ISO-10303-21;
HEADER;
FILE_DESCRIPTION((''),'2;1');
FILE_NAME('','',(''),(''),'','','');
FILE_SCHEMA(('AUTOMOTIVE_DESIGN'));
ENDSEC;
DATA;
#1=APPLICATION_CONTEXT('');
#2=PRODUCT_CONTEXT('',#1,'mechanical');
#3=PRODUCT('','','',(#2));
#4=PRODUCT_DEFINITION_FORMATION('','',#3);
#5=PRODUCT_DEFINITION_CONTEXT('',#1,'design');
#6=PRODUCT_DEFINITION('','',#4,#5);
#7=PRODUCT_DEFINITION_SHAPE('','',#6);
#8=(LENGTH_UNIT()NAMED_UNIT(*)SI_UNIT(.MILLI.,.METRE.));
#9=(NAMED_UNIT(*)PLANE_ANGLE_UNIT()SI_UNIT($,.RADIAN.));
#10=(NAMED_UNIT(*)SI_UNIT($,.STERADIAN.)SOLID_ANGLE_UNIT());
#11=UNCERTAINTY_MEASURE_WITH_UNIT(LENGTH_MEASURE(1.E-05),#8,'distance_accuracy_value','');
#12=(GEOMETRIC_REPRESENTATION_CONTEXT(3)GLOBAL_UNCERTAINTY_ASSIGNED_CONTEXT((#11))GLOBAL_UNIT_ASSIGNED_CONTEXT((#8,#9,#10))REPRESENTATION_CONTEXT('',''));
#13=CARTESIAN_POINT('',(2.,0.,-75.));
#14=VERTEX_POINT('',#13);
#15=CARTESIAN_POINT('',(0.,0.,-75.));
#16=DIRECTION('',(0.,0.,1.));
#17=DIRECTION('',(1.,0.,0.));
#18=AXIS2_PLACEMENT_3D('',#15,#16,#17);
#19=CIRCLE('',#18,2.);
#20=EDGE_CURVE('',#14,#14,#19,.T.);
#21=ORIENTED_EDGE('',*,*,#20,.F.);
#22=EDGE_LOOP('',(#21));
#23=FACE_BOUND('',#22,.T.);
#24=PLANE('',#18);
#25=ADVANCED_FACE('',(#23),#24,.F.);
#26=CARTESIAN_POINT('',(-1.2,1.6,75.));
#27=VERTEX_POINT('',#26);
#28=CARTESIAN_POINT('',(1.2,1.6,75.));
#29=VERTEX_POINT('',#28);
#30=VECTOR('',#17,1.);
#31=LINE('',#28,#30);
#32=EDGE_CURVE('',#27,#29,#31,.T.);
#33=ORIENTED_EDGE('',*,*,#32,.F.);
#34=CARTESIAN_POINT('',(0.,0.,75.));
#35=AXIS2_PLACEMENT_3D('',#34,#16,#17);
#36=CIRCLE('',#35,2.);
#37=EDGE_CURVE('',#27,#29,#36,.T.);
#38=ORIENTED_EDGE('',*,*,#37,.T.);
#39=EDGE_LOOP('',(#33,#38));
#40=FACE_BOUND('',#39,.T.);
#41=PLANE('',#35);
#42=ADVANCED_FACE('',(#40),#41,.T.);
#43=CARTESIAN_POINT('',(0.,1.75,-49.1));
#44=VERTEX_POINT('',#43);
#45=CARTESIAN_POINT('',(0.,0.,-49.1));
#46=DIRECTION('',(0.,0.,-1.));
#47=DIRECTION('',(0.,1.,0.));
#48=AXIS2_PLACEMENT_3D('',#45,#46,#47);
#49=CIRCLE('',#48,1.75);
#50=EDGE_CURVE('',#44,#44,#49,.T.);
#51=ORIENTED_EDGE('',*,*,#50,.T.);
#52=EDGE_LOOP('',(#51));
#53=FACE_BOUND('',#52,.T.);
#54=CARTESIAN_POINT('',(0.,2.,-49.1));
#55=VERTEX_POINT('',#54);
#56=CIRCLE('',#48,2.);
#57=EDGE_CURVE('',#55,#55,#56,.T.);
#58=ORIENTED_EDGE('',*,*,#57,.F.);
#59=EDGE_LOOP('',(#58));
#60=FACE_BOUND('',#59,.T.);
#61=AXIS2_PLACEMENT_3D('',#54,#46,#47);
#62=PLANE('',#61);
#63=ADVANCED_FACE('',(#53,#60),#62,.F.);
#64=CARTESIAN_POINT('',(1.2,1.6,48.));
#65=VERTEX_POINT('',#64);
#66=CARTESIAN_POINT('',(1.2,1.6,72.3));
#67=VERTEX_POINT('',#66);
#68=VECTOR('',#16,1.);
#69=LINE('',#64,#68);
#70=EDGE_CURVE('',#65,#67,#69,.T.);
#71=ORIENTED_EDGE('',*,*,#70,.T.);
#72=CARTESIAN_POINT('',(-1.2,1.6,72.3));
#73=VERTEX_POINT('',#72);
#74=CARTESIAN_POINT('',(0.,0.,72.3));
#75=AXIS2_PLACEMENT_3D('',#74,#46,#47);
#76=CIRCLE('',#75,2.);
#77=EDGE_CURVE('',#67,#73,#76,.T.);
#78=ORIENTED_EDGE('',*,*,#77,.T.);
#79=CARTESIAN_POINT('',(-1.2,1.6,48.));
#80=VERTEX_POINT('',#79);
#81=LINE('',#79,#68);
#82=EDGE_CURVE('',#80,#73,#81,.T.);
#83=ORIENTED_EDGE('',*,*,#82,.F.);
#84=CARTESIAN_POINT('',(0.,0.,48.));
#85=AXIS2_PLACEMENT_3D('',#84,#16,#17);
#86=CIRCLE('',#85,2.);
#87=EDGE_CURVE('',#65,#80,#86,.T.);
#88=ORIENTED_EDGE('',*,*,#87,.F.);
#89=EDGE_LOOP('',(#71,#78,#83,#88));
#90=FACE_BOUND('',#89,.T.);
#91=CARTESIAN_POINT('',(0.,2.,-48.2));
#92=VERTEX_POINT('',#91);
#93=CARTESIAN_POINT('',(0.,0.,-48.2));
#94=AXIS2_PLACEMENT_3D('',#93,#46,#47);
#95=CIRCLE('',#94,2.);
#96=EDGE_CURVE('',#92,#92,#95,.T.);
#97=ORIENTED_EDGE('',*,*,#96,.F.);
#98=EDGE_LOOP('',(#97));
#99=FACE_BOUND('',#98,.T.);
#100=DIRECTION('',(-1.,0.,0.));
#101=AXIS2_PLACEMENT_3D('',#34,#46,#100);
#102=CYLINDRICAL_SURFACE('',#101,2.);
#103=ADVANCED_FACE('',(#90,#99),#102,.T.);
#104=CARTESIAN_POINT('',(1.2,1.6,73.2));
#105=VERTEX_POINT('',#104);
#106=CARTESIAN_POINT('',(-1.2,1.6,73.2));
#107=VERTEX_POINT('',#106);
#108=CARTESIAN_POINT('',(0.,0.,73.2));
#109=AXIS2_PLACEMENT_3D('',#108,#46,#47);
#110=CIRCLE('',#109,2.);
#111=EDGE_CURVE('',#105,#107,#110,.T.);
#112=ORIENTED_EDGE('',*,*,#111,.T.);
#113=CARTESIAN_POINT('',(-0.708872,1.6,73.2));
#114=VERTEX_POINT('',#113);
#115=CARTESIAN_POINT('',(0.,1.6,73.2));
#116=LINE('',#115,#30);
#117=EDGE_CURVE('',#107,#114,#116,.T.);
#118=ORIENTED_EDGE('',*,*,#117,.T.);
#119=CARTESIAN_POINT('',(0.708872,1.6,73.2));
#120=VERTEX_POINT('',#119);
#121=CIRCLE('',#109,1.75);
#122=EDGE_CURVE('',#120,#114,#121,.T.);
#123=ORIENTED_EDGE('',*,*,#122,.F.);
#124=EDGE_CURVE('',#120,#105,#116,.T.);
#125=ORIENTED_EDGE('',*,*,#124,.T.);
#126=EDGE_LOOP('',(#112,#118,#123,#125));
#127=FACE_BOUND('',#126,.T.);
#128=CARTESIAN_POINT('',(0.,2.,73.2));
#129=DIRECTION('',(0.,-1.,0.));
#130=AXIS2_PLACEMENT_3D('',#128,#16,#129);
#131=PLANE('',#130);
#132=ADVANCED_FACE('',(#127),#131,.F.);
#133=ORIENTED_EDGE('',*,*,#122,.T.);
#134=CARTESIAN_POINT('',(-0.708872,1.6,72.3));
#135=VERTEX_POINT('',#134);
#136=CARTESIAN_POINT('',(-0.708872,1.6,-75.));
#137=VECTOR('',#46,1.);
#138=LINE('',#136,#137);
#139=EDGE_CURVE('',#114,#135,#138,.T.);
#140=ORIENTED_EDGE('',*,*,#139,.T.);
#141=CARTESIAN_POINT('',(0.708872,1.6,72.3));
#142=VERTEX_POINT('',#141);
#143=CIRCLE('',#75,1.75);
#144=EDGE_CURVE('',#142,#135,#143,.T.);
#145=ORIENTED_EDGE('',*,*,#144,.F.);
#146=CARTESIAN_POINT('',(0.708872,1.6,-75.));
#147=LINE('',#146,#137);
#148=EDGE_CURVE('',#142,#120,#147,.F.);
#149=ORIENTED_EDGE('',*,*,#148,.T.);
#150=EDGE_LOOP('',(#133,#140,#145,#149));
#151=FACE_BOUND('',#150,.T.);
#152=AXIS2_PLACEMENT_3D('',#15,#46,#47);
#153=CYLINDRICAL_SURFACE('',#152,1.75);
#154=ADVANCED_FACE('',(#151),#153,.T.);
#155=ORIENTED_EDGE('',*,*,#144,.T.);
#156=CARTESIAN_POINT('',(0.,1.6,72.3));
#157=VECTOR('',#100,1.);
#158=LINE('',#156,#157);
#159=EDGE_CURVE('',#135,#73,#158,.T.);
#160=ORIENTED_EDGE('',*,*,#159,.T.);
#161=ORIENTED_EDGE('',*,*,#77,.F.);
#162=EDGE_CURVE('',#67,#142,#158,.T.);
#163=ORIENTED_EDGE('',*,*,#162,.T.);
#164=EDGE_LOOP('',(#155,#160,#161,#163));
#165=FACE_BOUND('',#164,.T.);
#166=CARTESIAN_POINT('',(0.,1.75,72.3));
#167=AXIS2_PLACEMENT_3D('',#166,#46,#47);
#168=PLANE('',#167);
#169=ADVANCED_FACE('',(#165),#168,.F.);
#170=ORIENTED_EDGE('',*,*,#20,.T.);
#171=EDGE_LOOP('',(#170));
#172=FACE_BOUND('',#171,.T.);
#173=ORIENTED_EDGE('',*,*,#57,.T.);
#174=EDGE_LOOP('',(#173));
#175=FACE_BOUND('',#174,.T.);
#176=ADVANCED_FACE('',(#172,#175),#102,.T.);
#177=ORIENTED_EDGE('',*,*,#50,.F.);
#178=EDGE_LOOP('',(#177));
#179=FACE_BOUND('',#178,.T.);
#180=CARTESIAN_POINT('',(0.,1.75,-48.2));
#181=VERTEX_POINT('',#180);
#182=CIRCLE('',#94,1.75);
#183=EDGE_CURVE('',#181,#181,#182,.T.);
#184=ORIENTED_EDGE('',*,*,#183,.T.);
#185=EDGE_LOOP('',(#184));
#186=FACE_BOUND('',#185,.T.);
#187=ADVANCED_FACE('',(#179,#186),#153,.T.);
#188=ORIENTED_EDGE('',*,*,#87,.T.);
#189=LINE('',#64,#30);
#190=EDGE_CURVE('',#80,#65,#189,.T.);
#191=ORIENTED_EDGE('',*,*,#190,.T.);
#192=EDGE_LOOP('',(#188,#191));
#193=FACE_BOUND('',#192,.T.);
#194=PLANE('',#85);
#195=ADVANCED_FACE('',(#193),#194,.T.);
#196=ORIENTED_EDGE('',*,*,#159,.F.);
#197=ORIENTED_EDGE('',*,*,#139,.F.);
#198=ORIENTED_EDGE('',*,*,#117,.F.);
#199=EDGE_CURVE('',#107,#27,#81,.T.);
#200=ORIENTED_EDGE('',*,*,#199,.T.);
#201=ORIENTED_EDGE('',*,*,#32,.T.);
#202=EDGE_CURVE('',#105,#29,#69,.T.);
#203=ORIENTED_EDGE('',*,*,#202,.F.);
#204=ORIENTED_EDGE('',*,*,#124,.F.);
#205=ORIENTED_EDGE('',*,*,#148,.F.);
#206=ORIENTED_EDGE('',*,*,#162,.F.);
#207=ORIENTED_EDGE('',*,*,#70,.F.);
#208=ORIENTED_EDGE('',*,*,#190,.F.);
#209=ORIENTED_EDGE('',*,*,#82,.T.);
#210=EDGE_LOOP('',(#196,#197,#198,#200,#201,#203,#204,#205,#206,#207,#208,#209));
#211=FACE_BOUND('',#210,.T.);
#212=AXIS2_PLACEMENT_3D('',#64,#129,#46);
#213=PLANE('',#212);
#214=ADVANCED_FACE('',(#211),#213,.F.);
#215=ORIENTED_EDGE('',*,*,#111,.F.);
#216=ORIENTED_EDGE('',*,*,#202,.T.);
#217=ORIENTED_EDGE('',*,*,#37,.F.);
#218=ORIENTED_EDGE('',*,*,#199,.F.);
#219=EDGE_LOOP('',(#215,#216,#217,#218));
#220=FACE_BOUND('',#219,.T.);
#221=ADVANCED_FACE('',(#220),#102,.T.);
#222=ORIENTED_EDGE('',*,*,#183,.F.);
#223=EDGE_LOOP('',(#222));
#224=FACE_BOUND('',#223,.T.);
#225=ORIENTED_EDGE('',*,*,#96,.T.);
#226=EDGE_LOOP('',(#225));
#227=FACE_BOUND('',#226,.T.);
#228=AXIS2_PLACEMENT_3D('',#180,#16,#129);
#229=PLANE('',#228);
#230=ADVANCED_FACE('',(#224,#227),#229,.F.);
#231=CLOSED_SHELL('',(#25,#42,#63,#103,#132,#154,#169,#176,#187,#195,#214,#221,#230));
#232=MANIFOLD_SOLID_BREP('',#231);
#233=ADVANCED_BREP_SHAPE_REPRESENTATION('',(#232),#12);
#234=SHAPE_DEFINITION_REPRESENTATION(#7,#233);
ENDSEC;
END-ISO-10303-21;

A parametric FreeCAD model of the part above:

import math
import FreeCAD as App
import Part
import Sketcher

V = App.Vector
Q = App.Units.Quantity

doc = App.newDocument("Part")
body = doc.addObject("PartDesign::Body", "Body")

sketch1 = body.newObject("Sketcher::SketchObject", "Sketch")
sketch1.AttachmentSupport = (doc.getObject("XY_Plane"), [""])
sketch1.MapMode = "FlatFace"
sketch1.addGeometry(Part.Circle(V(0, 0, 0), V(0, 0, 1), 2), False)
sketch1.addConstraint([
    Sketcher.Constraint("Coincident", 0, 3, -1, 1),
    Sketcher.Constraint("Diameter", 0, Q("4 mm")),
])
pad1 = body.newObject("PartDesign::Pad", "Pad")
pad1.Profile = sketch1
pad1.Length = 150
pad1.Midplane = True

sketch2 = body.newObject("Sketcher::SketchObject", "Sketch001")
sketch2.AttachmentSupport = (doc.getObject("YZ_Plane"), [""])
sketch2.MapMode = "FlatFace"
sketch2.addGeometry([
    Part.LineSegment(V(2, 73.2, 0), V(1.75, 73.2, 0)),
    Part.LineSegment(V(1.75, 73.2, 0), V(1.75, 72.3, 0)),
    Part.LineSegment(V(1.75, 72.3, 0), V(2, 72.3, 0)),
    Part.LineSegment(V(2, 72.3, 0), V(2, 73.2, 0)),
    Part.LineSegment(V(2, -48.2, 0), V(1.75, -48.2, 0)),
    Part.LineSegment(V(1.75, -48.2, 0), V(1.75, -49.1, 0)),
    Part.LineSegment(V(1.75, -49.1, 0), V(2, -49.1, 0)),
    Part.LineSegment(V(2, -49.1, 0), V(2, -48.2, 0)),
], False)
sketch2.addConstraint([
    Sketcher.Constraint("Coincident", 0, 2, 1, 1),
    Sketcher.Constraint("Coincident", 1, 2, 2, 1),
    Sketcher.Constraint("Coincident", 2, 2, 3, 1),
    Sketcher.Constraint("Coincident", 3, 2, 0, 1),
    Sketcher.Constraint("Coincident", 4, 2, 5, 1),
    Sketcher.Constraint("Coincident", 5, 2, 6, 1),
    Sketcher.Constraint("Coincident", 6, 2, 7, 1),
    Sketcher.Constraint("Coincident", 7, 2, 4, 1),
    Sketcher.Constraint("Horizontal", 0),
    Sketcher.Constraint("Vertical", 1),
    Sketcher.Constraint("Horizontal", 2),
    Sketcher.Constraint("Vertical", 3),
    Sketcher.Constraint("Horizontal", 4),
    Sketcher.Constraint("Vertical", 5),
    Sketcher.Constraint("Horizontal", 6),
    Sketcher.Constraint("Vertical", 7),
    Sketcher.Constraint("Vertical", 1, 2, 4, 2),
    Sketcher.Constraint("Vertical", 3, 2, 6, 2),
    Sketcher.Constraint("Equal", 3, 5),
    Sketcher.Constraint("DistanceY", 1, 2, 1, 1, Q("0.9 mm")),
    Sketcher.Constraint("DistanceX", -1, 1, 2, 2, Q("2 mm")),
    Sketcher.Constraint("DistanceX", 0, 2, 0, 1, Q("0.25 mm")),
    Sketcher.Constraint("DistanceY", -1, 1, 0, 2, Q("73.2 mm")),
    Sketcher.Constraint("DistanceY", 4, 2, -1, 1, Q("48.2 mm")),
])
groove = body.newObject("PartDesign::Groove", "Groove")
groove.Profile = sketch2
groove.ReferenceAxis = (sketch2, ["V_Axis"])
groove.Angle = 360

sketch3 = body.newObject("Sketcher::SketchObject", "Sketch002")
sketch3.AttachmentSupport = (doc.getObject("XY_Plane"), [""])
sketch3.MapMode = "FlatFace"
sketch3.AttachmentOffset = App.Placement(V(0, 0, 75), App.Rotation())
sketch3.addGeometry([
    Part.LineSegment(V(-1.2, 1.6, 0), V(1.2, 1.6, 0)),
    Part.ArcOfCircle(Part.Circle(V(0, 0, 0), V(0, 0, 1), 2), math.radians(53), math.radians(127)),
], False)
sketch3.addConstraint([
    Sketcher.Constraint("Coincident", 0, 1, 1, 2),
    Sketcher.Constraint("Coincident", 1, 1, 0, 2),
    Sketcher.Constraint("Horizontal", 0),
    Sketcher.Constraint("Coincident", 1, 3, -1, 1),
    Sketcher.Constraint("Radius", 1, Q("2 mm")),
    Sketcher.Constraint("DistanceX", 0, 1, 0, 2, Q("2.4 mm")),
])
pocket1 = body.newObject("PartDesign::Pocket", "Pocket")
pocket1.Profile = sketch3
pocket1.Length = 27

doc.recompute()
